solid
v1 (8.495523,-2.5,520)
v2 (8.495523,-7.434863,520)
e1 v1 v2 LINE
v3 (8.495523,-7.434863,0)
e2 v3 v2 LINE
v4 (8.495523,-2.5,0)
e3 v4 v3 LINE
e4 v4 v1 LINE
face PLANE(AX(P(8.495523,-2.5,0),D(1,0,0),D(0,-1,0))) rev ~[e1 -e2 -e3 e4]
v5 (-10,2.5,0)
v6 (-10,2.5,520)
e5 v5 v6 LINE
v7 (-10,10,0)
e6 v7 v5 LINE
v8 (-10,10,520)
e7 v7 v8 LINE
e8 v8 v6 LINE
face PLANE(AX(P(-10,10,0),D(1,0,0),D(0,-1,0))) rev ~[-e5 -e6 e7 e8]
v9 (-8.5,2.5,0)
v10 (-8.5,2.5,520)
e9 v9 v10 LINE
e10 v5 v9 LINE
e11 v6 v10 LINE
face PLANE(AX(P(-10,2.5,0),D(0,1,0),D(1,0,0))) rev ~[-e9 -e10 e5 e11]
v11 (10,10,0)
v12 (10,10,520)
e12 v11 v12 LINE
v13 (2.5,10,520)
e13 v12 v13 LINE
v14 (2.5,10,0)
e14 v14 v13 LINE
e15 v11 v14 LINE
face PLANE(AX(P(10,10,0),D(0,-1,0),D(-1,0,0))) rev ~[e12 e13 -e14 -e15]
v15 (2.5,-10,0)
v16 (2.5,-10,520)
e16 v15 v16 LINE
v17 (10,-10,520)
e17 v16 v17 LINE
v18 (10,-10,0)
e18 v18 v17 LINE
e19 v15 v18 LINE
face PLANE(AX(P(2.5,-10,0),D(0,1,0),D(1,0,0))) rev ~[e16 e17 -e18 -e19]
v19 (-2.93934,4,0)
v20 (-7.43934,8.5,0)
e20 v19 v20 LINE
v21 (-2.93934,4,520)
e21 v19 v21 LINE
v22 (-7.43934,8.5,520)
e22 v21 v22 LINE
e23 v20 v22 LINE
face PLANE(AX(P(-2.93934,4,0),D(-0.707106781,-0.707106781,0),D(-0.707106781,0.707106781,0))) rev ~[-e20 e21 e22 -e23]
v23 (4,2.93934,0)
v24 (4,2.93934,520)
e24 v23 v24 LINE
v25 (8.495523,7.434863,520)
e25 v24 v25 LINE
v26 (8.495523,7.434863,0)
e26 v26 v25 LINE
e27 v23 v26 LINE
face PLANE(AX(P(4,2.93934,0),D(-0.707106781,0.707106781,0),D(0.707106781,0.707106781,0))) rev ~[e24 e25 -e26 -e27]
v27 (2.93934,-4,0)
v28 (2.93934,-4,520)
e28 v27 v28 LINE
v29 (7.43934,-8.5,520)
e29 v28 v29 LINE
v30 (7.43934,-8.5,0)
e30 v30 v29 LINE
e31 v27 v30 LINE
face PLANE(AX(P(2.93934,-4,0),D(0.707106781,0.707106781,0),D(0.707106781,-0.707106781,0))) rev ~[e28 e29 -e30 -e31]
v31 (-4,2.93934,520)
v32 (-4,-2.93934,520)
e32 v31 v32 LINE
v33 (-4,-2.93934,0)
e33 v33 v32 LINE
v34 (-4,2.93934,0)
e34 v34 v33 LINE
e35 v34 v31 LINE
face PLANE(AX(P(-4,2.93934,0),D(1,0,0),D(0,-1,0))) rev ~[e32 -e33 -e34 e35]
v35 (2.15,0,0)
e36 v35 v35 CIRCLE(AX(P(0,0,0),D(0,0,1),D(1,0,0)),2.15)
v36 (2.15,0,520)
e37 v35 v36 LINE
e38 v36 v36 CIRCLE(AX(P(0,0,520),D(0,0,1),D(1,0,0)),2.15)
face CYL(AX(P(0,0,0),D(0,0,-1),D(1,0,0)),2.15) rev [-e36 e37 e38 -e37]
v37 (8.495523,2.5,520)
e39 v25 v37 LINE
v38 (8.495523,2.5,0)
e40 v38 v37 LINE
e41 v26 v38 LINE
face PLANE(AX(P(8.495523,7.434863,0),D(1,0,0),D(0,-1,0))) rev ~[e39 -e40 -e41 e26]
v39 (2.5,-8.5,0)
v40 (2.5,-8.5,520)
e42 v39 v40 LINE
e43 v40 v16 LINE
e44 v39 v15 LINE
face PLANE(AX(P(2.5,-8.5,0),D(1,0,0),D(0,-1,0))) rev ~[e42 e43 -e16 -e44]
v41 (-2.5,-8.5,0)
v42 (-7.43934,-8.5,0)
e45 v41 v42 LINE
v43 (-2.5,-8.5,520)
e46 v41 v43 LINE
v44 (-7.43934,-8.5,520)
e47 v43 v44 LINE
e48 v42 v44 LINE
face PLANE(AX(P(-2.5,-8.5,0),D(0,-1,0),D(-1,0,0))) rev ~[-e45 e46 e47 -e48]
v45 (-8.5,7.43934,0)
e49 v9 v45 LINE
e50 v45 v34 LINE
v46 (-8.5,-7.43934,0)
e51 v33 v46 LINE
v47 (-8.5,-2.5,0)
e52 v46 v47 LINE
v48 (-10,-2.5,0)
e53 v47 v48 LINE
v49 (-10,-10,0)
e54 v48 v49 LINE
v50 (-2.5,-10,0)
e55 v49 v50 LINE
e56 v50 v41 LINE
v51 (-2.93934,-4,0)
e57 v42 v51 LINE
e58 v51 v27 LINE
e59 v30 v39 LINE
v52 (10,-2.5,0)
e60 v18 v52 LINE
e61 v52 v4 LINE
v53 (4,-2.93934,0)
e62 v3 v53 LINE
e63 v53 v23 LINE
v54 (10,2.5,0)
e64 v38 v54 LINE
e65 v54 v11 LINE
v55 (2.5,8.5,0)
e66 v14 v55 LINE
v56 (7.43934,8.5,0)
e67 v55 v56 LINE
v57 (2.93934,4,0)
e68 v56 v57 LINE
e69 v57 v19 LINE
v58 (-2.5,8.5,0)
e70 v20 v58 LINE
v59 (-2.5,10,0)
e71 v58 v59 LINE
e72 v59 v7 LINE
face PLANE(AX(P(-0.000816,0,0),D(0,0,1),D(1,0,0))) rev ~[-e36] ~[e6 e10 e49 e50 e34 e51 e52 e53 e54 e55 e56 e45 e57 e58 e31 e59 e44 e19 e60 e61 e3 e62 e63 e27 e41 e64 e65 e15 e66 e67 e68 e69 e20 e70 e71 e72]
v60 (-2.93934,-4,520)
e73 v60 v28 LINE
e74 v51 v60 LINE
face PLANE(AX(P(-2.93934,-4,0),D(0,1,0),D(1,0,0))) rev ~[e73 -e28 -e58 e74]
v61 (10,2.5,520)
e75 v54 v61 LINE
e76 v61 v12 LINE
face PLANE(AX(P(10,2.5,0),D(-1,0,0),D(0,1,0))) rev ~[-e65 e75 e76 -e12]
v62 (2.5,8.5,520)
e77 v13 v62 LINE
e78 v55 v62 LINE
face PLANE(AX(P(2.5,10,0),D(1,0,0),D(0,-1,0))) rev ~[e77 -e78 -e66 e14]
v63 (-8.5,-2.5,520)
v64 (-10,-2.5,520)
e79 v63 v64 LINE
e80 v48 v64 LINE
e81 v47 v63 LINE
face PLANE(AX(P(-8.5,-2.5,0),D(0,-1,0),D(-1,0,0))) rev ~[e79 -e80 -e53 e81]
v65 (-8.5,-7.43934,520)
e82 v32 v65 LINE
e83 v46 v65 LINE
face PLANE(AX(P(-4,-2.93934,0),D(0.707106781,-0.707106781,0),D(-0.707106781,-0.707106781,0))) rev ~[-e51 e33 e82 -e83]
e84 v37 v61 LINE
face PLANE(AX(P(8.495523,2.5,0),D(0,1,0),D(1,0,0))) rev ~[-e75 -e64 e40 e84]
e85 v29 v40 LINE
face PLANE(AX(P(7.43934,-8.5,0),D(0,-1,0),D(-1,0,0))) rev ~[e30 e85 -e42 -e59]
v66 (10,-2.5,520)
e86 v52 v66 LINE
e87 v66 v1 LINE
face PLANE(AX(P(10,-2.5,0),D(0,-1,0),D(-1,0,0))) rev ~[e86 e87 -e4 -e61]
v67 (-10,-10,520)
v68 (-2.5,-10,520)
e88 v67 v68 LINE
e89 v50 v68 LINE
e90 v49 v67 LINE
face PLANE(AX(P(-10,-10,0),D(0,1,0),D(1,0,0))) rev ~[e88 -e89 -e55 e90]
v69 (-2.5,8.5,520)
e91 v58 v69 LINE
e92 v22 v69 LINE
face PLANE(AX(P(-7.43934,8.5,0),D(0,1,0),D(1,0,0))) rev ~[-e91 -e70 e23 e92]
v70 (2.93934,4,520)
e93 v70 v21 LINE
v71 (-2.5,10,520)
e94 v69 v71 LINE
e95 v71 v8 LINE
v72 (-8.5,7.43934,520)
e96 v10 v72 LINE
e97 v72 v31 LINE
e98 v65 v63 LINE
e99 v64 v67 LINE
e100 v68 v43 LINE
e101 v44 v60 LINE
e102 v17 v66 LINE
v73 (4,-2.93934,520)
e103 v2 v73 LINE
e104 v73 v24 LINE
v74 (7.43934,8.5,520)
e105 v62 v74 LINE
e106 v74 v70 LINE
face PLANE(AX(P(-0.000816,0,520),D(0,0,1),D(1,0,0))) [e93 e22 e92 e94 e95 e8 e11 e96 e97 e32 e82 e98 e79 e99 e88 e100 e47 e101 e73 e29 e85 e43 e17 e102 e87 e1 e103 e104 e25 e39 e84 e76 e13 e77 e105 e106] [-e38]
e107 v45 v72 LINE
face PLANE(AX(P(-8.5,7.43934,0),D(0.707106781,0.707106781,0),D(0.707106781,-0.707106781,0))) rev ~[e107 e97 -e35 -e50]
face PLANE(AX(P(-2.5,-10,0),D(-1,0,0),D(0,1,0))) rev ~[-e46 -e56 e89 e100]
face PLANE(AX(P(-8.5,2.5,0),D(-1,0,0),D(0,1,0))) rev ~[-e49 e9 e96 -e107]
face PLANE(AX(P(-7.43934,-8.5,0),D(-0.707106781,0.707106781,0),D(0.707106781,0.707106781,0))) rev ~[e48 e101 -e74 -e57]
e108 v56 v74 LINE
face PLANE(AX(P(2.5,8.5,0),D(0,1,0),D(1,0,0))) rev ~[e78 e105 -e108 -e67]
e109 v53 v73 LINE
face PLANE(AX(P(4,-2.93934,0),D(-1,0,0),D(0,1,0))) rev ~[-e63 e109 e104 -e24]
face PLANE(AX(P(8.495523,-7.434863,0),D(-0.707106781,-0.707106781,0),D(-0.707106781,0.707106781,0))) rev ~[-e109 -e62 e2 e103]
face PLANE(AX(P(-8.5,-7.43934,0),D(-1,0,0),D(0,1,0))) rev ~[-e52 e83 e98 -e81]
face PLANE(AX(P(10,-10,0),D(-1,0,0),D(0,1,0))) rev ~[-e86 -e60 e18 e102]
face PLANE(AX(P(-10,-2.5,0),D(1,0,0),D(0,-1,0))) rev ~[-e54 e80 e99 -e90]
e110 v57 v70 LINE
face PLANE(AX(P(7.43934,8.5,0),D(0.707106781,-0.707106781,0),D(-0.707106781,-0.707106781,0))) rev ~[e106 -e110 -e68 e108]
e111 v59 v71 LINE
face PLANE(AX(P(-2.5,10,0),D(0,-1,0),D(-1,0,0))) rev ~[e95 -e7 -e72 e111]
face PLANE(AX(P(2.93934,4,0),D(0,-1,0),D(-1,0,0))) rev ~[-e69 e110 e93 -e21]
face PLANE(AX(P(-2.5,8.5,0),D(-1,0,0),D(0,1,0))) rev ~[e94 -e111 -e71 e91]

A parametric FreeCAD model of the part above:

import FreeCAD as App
import Part
import Sketcher

V = App.Vector

doc = App.newDocument("Part")
params = doc.addObject("Spreadsheet::Sheet", "Params")
for row, (alias, value) in enumerate([
    ("sketch1_diameter", "4.3 mm"),
    ("sketch1_width", "7.5 mm"),
    ("sketch1_width2", "1.5 mm"),
    ("pad1_length", "520 mm"),
], start=1):
    params.set(f"A{row}", alias)
    params.set(f"B{row}", "=" + value)
    params.setAlias(f"B{row}", alias)

body = doc.addObject("PartDesign::Body", "Body")

# Sketch on XY plane
sketch1 = body.newObject("Sketcher::SketchObject", "Sketch")
sketch1.AttachmentSupport = (doc.getObject("XY_Plane"), [""])
sketch1.MapMode = "FlatFace"
sketch1.addGeometry([
    Part.LineSegment(V(-10, -2.5, 0), V(-10, -10, 0)),  # 0
    Part.LineSegment(V(-10, -10, 0), V(-2.5, -10, 0)),  # 1
    Part.LineSegment(V(-2.5, -10, 0), V(-2.5, -8.5, 0)),  # 2
    Part.LineSegment(V(-2.5, -8.5, 0), V(-7.4, -8.5, 0)),  # 3
    Part.LineSegment(V(-7.4, -8.5, 0), V(-2.9, -4, 0)),  # 4
    Part.LineSegment(V(-2.9, -4, 0), V(2.9, -4, 0)),  # 5
    Part.LineSegment(V(2.9, -4, 0), V(7.4, -8.5, 0)),  # 6
    Part.LineSegment(V(7.4, -8.5, 0), V(2.5, -8.5, 0)),  # 7
    Part.LineSegment(V(2.5, -8.5, 0), V(2.5, -10, 0)),  # 8
    Part.LineSegment(V(2.5, -10, 0), V(10, -10, 0)),  # 9
    Part.LineSegment(V(10, -10, 0), V(10, -2.5, 0)),  # 10
    Part.LineSegment(V(10, -2.5, 0), V(8.5, -2.5, 0)),  # 11
    Part.LineSegment(V(8.5, -2.5, 0), V(8.5, -7.4, 0)),  # 12
    Part.LineSegment(V(8.5, -7.4, 0), V(4, -2.9, 0)),  # 13
    Part.LineSegment(V(4, -2.9, 0), V(4, 2.9, 0)),  # 14
    Part.LineSegment(V(4, 2.9, 0), V(8.5, 7.4, 0)),  # 15
    Part.LineSegment(V(8.5, 7.4, 0), V(8.5, 2.5, 0)),  # 16
    Part.LineSegment(V(8.5, 2.5, 0), V(10, 2.5, 0)),  # 17
    Part.LineSegment(V(10, 2.5, 0), V(10, 10, 0)),  # 18
    Part.LineSegment(V(10, 10, 0), V(2.5, 10, 0)),  # 19
    Part.LineSegment(V(2.5, 10, 0), V(2.5, 8.5, 0)),  # 20
    Part.LineSegment(V(2.5, 8.5, 0), V(7.4, 8.5, 0)),  # 21
    Part.LineSegment(V(7.4, 8.5, 0), V(2.9, 4, 0)),  # 22
    Part.LineSegment(V(2.9, 4, 0), V(-2.9, 4, 0)),  # 23
    Part.LineSegment(V(-2.9, 4, 0), V(-7.4, 8.5, 0)),  # 24
    Part.LineSegment(V(-7.4, 8.5, 0), V(-2.5, 8.5, 0)),  # 25
    Part.LineSegment(V(-2.5, 8.5, 0), V(-2.5, 10, 0)),  # 26
    Part.LineSegment(V(-2.5, 10, 0), V(-10, 10, 0)),  # 27
    Part.LineSegment(V(-10, 10, 0), V(-10, 2.5, 0)),  # 28
    Part.LineSegment(V(-10, 2.5, 0), V(-8.5, 2.5, 0)),  # 29
    Part.LineSegment(V(-8.5, 2.5, 0), V(-8.5, 7.4, 0)),  # 30
    Part.LineSegment(V(-8.5, 7.4, 0), V(-4, 2.9, 0)),  # 31
    Part.LineSegment(V(-4, 2.9, 0), V(-4, -2.9, 0)),  # 32
    Part.LineSegment(V(-4, -2.9, 0), V(-8.5, -7.4, 0)),  # 33
    Part.LineSegment(V(-8.5, -7.4, 0), V(-8.5, -2.5, 0)),  # 34
    Part.LineSegment(V(-8.5, -2.5, 0), V(-10, -2.5, 0)),  # 35
    Part.Circle(V(0, 0, 0), V(0, 0, 1), 2.1),  # 36
], False)
sketch1.addConstraint([
    Sketcher.Constraint("Coincident", 0, 2, 1, 1),
    Sketcher.Constraint("Coincident", 1, 2, 2, 1),
    Sketcher.Constraint("Coincident", 2, 2, 3, 1),
    Sketcher.Constraint("Coincident", 3, 2, 4, 1),
    Sketcher.Constraint("Coincident", 4, 2, 5, 1),
    Sketcher.Constraint("Coincident", 5, 2, 6, 1),
    Sketcher.Constraint("Coincident", 6, 2, 7, 1),
    Sketcher.Constraint("Coincident", 7, 2, 8, 1),
    Sketcher.Constraint("Coincident", 8, 2, 9, 1),
    Sketcher.Constraint("Coincident", 9, 2, 10, 1),
    Sketcher.Constraint("Coincident", 10, 2, 11, 1),
    Sketcher.Constraint("Coincident", 11, 2, 12, 1),
    Sketcher.Constraint("Coincident", 12, 2, 13, 1),
    Sketcher.Constraint("Coincident", 13, 2, 14, 1),
    Sketcher.Constraint("Coincident", 14, 2, 15, 1),
    Sketcher.Constraint("Coincident", 15, 2, 16, 1),
    Sketcher.Constraint("Coincident", 16, 2, 17, 1),
    Sketcher.Constraint("Coincident", 17, 2, 18, 1),
    Sketcher.Constraint("Coincident", 18, 2, 19, 1),
    Sketcher.Constraint("Coincident", 19, 2, 20, 1),
    Sketcher.Constraint("Coincident", 20, 2, 21, 1),
    Sketcher.Constraint("Coincident", 21, 2, 22, 1),
    Sketcher.Constraint("Coincident", 22, 2, 23, 1),
    Sketcher.Constraint("Coincident", 23, 2, 24, 1),
    Sketcher.Constraint("Coincident", 24, 2, 25, 1),
    Sketcher.Constraint("Coincident", 25, 2, 26, 1),
    Sketcher.Constraint("Coincident", 26, 2, 27, 1),
    Sketcher.Constraint("Coincident", 27, 2, 28, 1),
    Sketcher.Constraint("Coincident", 28, 2, 29, 1),
    Sketcher.Constraint("Coincident", 29, 2, 30, 1),
    Sketcher.Constraint("Coincident", 30, 2, 31, 1),
    Sketcher.Constraint("Coincident", 31, 2, 32, 1),
    Sketcher.Constraint("Coincident", 32, 2, 33, 1),
    Sketcher.Constraint("Coincident", 33, 2, 34, 1),
    Sketcher.Constraint("Coincident", 34, 2, 35, 1),
    Sketcher.Constraint("Coincident", 35, 2, 0, 1),
    Sketcher.Constraint("Vertical", 0),
    Sketcher.Constraint("Horizontal", 1),
    Sketcher.Constraint("Vertical", 2),
    Sketcher.Constraint("Horizontal", 3),
    Sketcher.Constraint("Horizontal", 5),
    Sketcher.Constraint("Horizontal", 7),
    Sketcher.Constraint("Vertical", 8),
    Sketcher.Constraint("Horizontal", 9),
    Sketcher.Constraint("Vertical", 10),
    Sketcher.Constraint("Horizontal", 11),
    Sketcher.Constraint("Vertical", 12),
    Sketcher.Constraint("Vertical", 14),
    Sketcher.Constraint("Vertical", 16),
    Sketcher.Constraint("Horizontal", 17),
    Sketcher.Constraint("Vertical", 18),
    Sketcher.Constraint("Horizontal", 19),
    Sketcher.Constraint("Vertical", 20),
    Sketcher.Constraint("Horizontal", 21),
    Sketcher.Constraint("Horizontal", 23),
    Sketcher.Constraint("Horizontal", 25),
    Sketcher.Constraint("Vertical", 26),
    Sketcher.Constraint("Horizontal", 27),
    Sketcher.Constraint("Vertical", 28),
    Sketcher.Constraint("Horizontal", 29),
    Sketcher.Constraint("Vertical", 30),
    Sketcher.Constraint("Vertical", 32),
    Sketcher.Constraint("Vertical", 34),
    Sketcher.Constraint("Horizontal", 35),
    Sketcher.Constraint("Coincident", 36, 3, -1, 1),
    Sketcher.Constraint("Symmetric", 0, 2, 18, 2, -1, 1),
    Sketcher.Constraint("Symmetric", 2, 2, 20, 2, -1, 1),
    Sketcher.Constraint("Symmetric", 4, 2, 22, 2, -1, 1),
    Sketcher.Constraint("Symmetric", 6, 2, 24, 2, -1, 1),
    Sketcher.Constraint("Symmetric", 8, 2, 26, 2, -1, 1),
    Sketcher.Constraint("Symmetric", 10, 2, 28, 2, -1, 1),
    Sketcher.Constraint("Symmetric", 13, 2, 31, 2, -1, 1),
    Sketcher.Constraint("Symmetric", 3, 2, 6, 2, -2),
    Sketcher.Constraint("Symmetric", 1, 2, 8, 2, -2),
    Sketcher.Constraint("Symmetric", 17, 2, 28, 2, -2),
    Sketcher.Constraint("Symmetric", 12, 2, 15, 2, -1),
    Sketcher.Constraint("Symmetric", 30, 2, 33, 2, -1),
    Sketcher.Constraint("Perpendicular", 4, 6),
    Sketcher.Constraint("Parallel", 6, 13),
    Sketcher.Constraint("Perpendicular", 13, 15),
    Sketcher.Constraint("Parallel", 15, 22),
    Sketcher.Constraint("Perpendicular", 22, 24),
    Sketcher.Constraint("Parallel", 24, 31),
    Sketcher.Constraint("Perpendicular", 31, 33),
    Sketcher.Constraint("Horizontal", 14, 2, 31, 2),
    Sketcher.Constraint("Horizontal", 11, 2, 34, 2),
    Sketcher.Constraint("Equal", 27, 0),
    Sketcher.Constraint("Equal", 35, 2),
    Sketcher.Constraint("Equal", 23, 14),
    Sketcher.Constraint("Equal", 25, 30),
    Sketcher.Constraint("Equal", 24, 31),
    Sketcher.Constraint("Diameter", 36, 4.3),
    Sketcher.Constraint("DistanceX", 1, 1, 1, 2, 7.5),
    Sketcher.Constraint("DistanceX", 29, 1, 29, 2, 1.5),
    Sketcher.Constraint("DistanceX", 0, 2, -1, 1, 10.0),
    Sketcher.Constraint("DistanceY", 4, 2, -1, 1, 4.0),
    Sketcher.Constraint("DistanceX", 3, 2, 3, 1, 4.93934),
    Sketcher.Constraint("Distance", 13, 6.35763),
])
sketch1.setExpression("Constraints[91]", "Params.sketch1_diameter")
sketch1.setExpression("Constraints[92]", "Params.sketch1_width")
sketch1.setExpression("Constraints[93]", "Params.sketch1_width2")
pad1 = body.newObject("PartDesign::Pad", "Pad")
pad1.Profile = sketch1
pad1.setExpression("Length", "Params.pad1_length")

doc.recompute()
